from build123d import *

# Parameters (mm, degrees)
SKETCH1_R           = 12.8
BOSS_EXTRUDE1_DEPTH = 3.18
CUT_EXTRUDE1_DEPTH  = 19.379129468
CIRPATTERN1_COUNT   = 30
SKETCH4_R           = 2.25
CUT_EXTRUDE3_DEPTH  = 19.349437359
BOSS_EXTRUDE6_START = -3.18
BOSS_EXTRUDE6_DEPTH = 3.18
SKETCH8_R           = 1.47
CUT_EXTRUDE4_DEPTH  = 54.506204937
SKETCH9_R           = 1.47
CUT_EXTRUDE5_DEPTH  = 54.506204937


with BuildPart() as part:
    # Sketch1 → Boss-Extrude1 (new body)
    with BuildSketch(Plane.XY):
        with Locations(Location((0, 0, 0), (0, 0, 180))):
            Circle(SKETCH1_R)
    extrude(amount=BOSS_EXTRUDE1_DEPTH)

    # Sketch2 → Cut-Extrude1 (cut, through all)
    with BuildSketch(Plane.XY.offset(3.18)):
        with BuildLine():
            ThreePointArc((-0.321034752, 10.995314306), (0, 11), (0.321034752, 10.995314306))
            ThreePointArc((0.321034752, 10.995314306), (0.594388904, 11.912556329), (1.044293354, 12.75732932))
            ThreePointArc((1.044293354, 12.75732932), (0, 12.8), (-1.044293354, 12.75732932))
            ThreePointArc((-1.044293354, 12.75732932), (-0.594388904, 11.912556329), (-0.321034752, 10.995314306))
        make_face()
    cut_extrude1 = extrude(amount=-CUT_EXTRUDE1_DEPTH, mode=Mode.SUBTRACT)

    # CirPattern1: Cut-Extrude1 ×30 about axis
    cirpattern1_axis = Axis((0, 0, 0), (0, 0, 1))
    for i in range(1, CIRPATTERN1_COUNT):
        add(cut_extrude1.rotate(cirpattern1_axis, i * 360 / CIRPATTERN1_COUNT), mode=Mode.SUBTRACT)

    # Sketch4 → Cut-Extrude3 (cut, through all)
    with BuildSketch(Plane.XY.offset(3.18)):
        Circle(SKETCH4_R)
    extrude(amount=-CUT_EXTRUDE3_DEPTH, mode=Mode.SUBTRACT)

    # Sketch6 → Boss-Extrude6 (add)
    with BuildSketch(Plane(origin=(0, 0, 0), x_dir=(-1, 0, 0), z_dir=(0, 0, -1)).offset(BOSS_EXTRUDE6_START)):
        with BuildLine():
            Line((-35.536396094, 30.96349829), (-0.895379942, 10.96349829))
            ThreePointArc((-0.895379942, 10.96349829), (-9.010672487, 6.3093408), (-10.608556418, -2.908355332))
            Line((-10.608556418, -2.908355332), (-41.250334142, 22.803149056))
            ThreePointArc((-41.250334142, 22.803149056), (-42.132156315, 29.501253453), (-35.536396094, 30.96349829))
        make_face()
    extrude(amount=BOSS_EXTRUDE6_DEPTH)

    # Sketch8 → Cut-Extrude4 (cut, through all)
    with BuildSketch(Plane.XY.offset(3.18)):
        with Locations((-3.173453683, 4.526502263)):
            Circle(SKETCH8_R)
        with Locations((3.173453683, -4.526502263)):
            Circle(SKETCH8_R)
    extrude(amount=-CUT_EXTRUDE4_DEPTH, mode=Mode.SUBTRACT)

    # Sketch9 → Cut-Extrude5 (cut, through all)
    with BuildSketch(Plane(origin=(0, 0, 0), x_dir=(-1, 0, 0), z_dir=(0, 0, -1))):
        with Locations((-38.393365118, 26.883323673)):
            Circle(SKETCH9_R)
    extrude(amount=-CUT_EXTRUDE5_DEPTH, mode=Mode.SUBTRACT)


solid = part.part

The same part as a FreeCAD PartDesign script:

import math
import FreeCAD as App
import Part
import Sketcher
from FreeCAD import Vector
Q = App.Units.Quantity

doc = App.newDocument("Part")
body = doc.addObject("PartDesign::Body", "Body")

# Sketch on XY plane
sketch1 = doc.addObject("Sketcher::SketchObject", "Sketch")
body.addObject(sketch1)
sketch1.AttachmentSupport = (doc.XY_Plane, [""])
sketch1.MapMode = "FlatFace"
sketch1.addGeometry(Part.Circle(Vector(0, 0, 0), Vector(0, 0, 1), 13), False)
sketch1.addConstraint([
    Sketcher.Constraint("Coincident", 0, 3, -1, 1),
    Sketcher.Constraint("Diameter", 0, 25.6),
])
pad1 = doc.addObject("PartDesign::Pad", "Pad")
body.addObject(pad1)
pad1.Profile = sketch1
pad1.Length = 3.18

# Sketch on XY plane
sketch2 = doc.addObject("Sketcher::SketchObject", "Sketch001")
body.addObject(sketch2)
sketch2.AttachmentSupport = (doc.XY_Plane, [""])
sketch2.MapMode = "FlatFace"
sketch2.AttachmentOffset = App.Placement(Vector(0, 0, 3.18), App.Rotation())
sketch2.addGeometry([
    Part.ArcOfCircle(Part.Circle(Vector(0, 0, 0), Vector(0, 0, 1), 11), math.radians(88.33), math.radians(91.67)),
    Part.ArcOfCircle(Part.Circle(Vector(5, 10.1, 0), Vector(0, 0, 1), 4.8), math.radians(146), math.radians(169)),
    Part.ArcOfCircle(Part.Circle(Vector(0, 0, 0), Vector(0, 0, 1), 12.8), math.radians(85.32), math.radians(94.68)),
    Part.ArcOfCircle(Part.Circle(Vector(-5, 10.1, 0), Vector(0, 0, 1), 4.8), math.radians(11), math.radians(34)),
], False)
sketch2.addConstraint([
    Sketcher.Constraint("Coincident", 0, 1, 1, 2),
    Sketcher.Constraint("Coincident", 1, 1, 2, 1),
    Sketcher.Constraint("Coincident", 2, 2, 3, 2),
    Sketcher.Constraint("Coincident", 3, 1, 0, 2),
    Sketcher.Constraint("Coincident", 0, 3, -1, 1),
    Sketcher.Constraint("Coincident", 2, 3, -1, 1),
    Sketcher.Constraint("Equal", 1, 3),
    Sketcher.Constraint("Symmetric", 1, 3, 3, 3, -2),
    Sketcher.Constraint("Radius", 0, 11.0),
    Sketcher.Constraint("Radius", 1, 4.8),
    Sketcher.Constraint("Radius", 2, 12.8),
    Sketcher.Constraint("DistanceX", -1, 1, 1, 3, 5.034861),
    Sketcher.Constraint("DistanceY", -1, 1, 1, 1, 12.757329),
])
pocket1 = doc.addObject("PartDesign::Pocket", "Pocket")
body.addObject(pocket1)
pocket1.Profile = sketch2
pocket1.Type = "ThroughAll"
doc.recompute()

polarpattern = doc.addObject("PartDesign::PolarPattern", "PolarPattern")
body.addObject(polarpattern)
polarpattern.Originals = [pocket1]
polarpattern.Axis = (doc.Z_Axis, [""])
polarpattern.Angle = 360
polarpattern.Occurrences = 30
body.Tip = polarpattern

# Sketch on XY plane
sketch3 = doc.addObject("Sketcher::SketchObject", "Sketch002")
body.addObject(sketch3)
sketch3.AttachmentSupport = (doc.XY_Plane, [""])
sketch3.MapMode = "FlatFace"
sketch3.AttachmentOffset = App.Placement(Vector(0, 0, 3.18), App.Rotation())
sketch3.addGeometry(Part.Circle(Vector(0, 0, 0), Vector(0, 0, 1), 2.2), False)
sketch3.addConstraint([
    Sketcher.Constraint("Coincident", 0, 3, -1, 1),
    Sketcher.Constraint("Diameter", 0, 4.5),
])
pocket2 = doc.addObject("PartDesign::Pocket", "Pocket001")
body.addObject(pocket2)
pocket2.Profile = sketch3
pocket2.Type = "ThroughAll"

# Sketch on XY plane
sketch4 = doc.addObject("Sketcher::SketchObject", "Sketch003")
body.addObject(sketch4)
sketch4.AttachmentSupport = (doc.XY_Plane, [""])
sketch4.MapMode = "FlatFace"
sketch4.AttachmentOffset = App.Placement(Vector(0, 0, 3.18), App.Rotation())
sketch4.addGeometry([
    Part.LineSegment(Vector(1, 11, 0), Vector(36, 31, 0)),
    Part.ArcOfCircle(Part.Circle(Vector(38, 27, 0), Vector(0, 0, 1), 5), math.radians(-50), math.radians(120)),
    Part.LineSegment(Vector(41, 23, 0), Vector(11, -3, 0)),
    Part.ArcOfCircle(Part.Circle(Vector(0, 0, 0), Vector(0, 0, 1), 11), math.radians(-15), math.radians(85)),
], False)
sketch4.addConstraint([
    Sketcher.Constraint("Tangent", 0, 2, 1, 2),
    Sketcher.Constraint("Tangent", 1, 1, 2, 1),
    Sketcher.Constraint("Coincident", 2, 2, 3, 1),
    Sketcher.Constraint("Coincident", 3, 2, 0, 1),
    Sketcher.Constraint("Coincident", 3, 3, -1, 1),
    Sketcher.Constraint("Equal", 0, 2),
    Sketcher.Constraint("Radius", 1, 5.0),
    Sketcher.Constraint("Radius", 3, 11.0),
    Sketcher.Constraint("Angle", 0, Q("30 deg")),
    Sketcher.Constraint("Angle", 2, Q("-140 deg")),
    Sketcher.Constraint("Distance", 0, 40.0),
])
pad2 = doc.addObject("PartDesign::Pad", "Pad001")
body.addObject(pad2)
pad2.Profile = sketch4
pad2.Length = 3.18
pad2.Reversed = True

# Sketch on XY plane
sketch5 = doc.addObject("Sketcher::SketchObject", "Sketch004")
body.addObject(sketch5)
sketch5.AttachmentSupport = (doc.XY_Plane, [""])
sketch5.MapMode = "FlatFace"
sketch5.AttachmentOffset = App.Placement(Vector(0, 0, 3.18), App.Rotation())
sketch5.addGeometry([
    Part.Circle(Vector(-3.2, 4.5, 0), Vector(0, 0, 1), 1.5),
    Part.Circle(Vector(3.2, -4.5, 0), Vector(0, 0, 1), 1.5),
], False)
sketch5.addConstraint([
    Sketcher.Constraint("Equal", 0, 1),
    Sketcher.Constraint("Symmetric", 0, 3, 1, 3, -1, 1),
    Sketcher.Constraint("Diameter", 0, 2.94),
    Sketcher.Constraint("DistanceX", 0, 3, -1, 1, 3.173454),
    Sketcher.Constraint("DistanceY", -1, 1, 0, 3, 4.526502),
])
pocket3 = doc.addObject("PartDesign::Pocket", "Pocket002")
body.addObject(pocket3)
pocket3.Profile = sketch5
pocket3.Type = "ThroughAll"

# Sketch on XY plane
sketch6 = doc.addObject("Sketcher::SketchObject", "Sketch005")
body.addObject(sketch6)
sketch6.AttachmentSupport = (doc.XY_Plane, [""])
sketch6.MapMode = "FlatFace"
sketch6.addGeometry(Part.Circle(Vector(38.4, 26.9, 0), Vector(0, 0, 1), 1.5), False)
sketch6.addConstraint([
    Sketcher.Constraint("Diameter", 0, 2.94),
    Sketcher.Constraint("DistanceX", -1, 1, 0, 3, 38.393365),
    Sketcher.Constraint("DistanceY", -1, 1, 0, 3, 26.883324),
])
pocket4 = doc.addObject("PartDesign::Pocket", "Pocket003")
body.addObject(pocket4)
pocket4.Profile = sketch6
pocket4.Type = "ThroughAll"
pocket4.Reversed = True

doc.recompute()
